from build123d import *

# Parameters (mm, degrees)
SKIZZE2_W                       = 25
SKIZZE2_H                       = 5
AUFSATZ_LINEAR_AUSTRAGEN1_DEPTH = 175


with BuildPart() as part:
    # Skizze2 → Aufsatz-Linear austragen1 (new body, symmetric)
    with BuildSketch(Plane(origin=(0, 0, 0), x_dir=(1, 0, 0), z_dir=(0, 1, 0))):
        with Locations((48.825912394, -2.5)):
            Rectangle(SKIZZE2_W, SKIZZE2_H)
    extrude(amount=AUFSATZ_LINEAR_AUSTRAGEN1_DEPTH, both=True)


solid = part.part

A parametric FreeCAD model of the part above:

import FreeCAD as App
import Part
import Sketcher


def add_polygon(sketch, points):
    """Adds a closed chain of lines whose ends are joined by coincident constraints."""
    first, n = sketch.GeometryCount, len(points)
    for a, b in zip(points, points[1:] + points[:1]):
        sketch.addGeometry(Part.LineSegment(App.Vector(*a, 0), App.Vector(*b, 0)), False)
    for i in range(n):
        sketch.addConstraint(Sketcher.Constraint("Coincident", first + i, 2, first + (i + 1) % n, 1))

doc = App.newDocument("Part")
body = doc.addObject("PartDesign::Body", "Body")

sketch1 = doc.addObject("Sketcher::SketchObject", "Sketch")
body.addObject(sketch1)
sketch1.AttachmentSupport = (doc.XZ_Plane, [""])
sketch1.MapMode = "FlatFace"
add_polygon(sketch1, [(36, 0), (36, 5), (61, 5), (61, 0)])
sketch1.addConstraint(Sketcher.Constraint("Vertical", 0))
sketch1.addConstraint(Sketcher.Constraint("Horizontal", 1))
sketch1.addConstraint(Sketcher.Constraint("Vertical", 2))
sketch1.addConstraint(Sketcher.Constraint("Horizontal", 3))
sketch1.addConstraint(Sketcher.Constraint("PointOnObject", 2, 2, -1))
sketch1.addConstraint(Sketcher.Constraint("DistanceX", 1, 1, 1, 2, 25.0))
sketch1.addConstraint(Sketcher.Constraint("DistanceY", 0, 1, 0, 2, 5.0))
sketch1.addConstraint(Sketcher.Constraint("DistanceX", -1, 1, 0, 2, 36.325912))
pad1 = doc.addObject("PartDesign::Pad", "Pad")
body.addObject(pad1)
pad1.Profile = sketch1
pad1.Length = 350
pad1.Midplane = True

doc.recompute()
